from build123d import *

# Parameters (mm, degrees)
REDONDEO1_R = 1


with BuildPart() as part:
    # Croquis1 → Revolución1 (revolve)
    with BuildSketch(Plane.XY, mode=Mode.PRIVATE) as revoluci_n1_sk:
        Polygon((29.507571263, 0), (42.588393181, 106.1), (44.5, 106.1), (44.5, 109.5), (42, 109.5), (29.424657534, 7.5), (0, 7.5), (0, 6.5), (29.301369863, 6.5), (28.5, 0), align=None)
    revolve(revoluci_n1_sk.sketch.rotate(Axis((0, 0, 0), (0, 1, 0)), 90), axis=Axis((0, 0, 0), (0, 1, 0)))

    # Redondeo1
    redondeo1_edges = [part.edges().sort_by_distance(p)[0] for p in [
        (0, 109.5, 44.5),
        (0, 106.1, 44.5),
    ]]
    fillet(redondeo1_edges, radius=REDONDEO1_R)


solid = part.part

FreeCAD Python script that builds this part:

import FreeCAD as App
import Part
import Sketcher


def edges_at(feature, points):
    """Names of the edges that pass closest to the given points."""
    edges = feature.Shape.Edges
    near = lambda p: min(range(len(edges)), key=lambda i: edges[i].distToShape(Part.Vertex(*p))[0])
    return sorted({f"Edge{near(p) + 1}" for p in points})

doc = App.newDocument("Part")
params = doc.addObject("Spreadsheet::Sheet", "Params")
for row, (alias, value) in enumerate([
    ("sketch1_height", "1 mm"),
    ("sketch1_width", "2.5 mm"),
    ("sketch1_height2", "3.4 mm"),
    ("revolution_angle", "360 deg"),
    ("fillet_radius", "1 mm"),
], start=1):
    params.set(f"A{row}", alias)
    params.set(f"B{row}", "=" + value)
    params.setAlias(f"B{row}", alias)

body = doc.addObject("PartDesign::Body", "Body")

sketch1 = body.newObject("Sketcher::SketchObject", "Sketch")
sketch1.AttachmentSupport = (doc.getObject("XY_Plane"), [""])
sketch1.MapMode = "FlatFace"
sketch1.addGeometry(Part.LineSegment(App.Vector(29.5, 0, 0), App.Vector(42.6, 106.1, 0)), False)
sketch1.addGeometry(Part.LineSegment(App.Vector(42.6, 106.1, 0), App.Vector(44.5, 106.1, 0)), False)
sketch1.addGeometry(Part.LineSegment(App.Vector(44.5, 106.1, 0), App.Vector(44.5, 109.5, 0)), False)
sketch1.addGeometry(Part.LineSegment(App.Vector(44.5, 109.5, 0), App.Vector(42, 109.5, 0)), False)
sketch1.addGeometry(Part.LineSegment(App.Vector(42, 109.5, 0), App.Vector(29.4, 7.5, 0)), False)
sketch1.addGeometry(Part.LineSegment(App.Vector(29.4, 7.5, 0), App.Vector(0, 7.5, 0)), False)
sketch1.addGeometry(Part.LineSegment(App.Vector(0, 7.5, 0), App.Vector(0, 6.5, 0)), False)
sketch1.addGeometry(Part.LineSegment(App.Vector(0, 6.5, 0), App.Vector(29.3, 6.5, 0)), False)
sketch1.addGeometry(Part.LineSegment(App.Vector(29.3, 6.5, 0), App.Vector(28.5, 0, 0)), False)
sketch1.addGeometry(Part.LineSegment(App.Vector(28.5, 0, 0), App.Vector(29.5, 0, 0)), False)
sketch1.addConstraint(Sketcher.Constraint("Coincident", 0, 2, 1, 1))
sketch1.addConstraint(Sketcher.Constraint("Coincident", 1, 2, 2, 1))
sketch1.addConstraint(Sketcher.Constraint("Coincident", 2, 2, 3, 1))
sketch1.addConstraint(Sketcher.Constraint("Coincident", 3, 2, 4, 1))
sketch1.addConstraint(Sketcher.Constraint("Coincident", 4, 2, 5, 1))
sketch1.addConstraint(Sketcher.Constraint("Coincident", 5, 2, 6, 1))
sketch1.addConstraint(Sketcher.Constraint("Coincident", 6, 2, 7, 1))
sketch1.addConstraint(Sketcher.Constraint("Coincident", 7, 2, 8, 1))
sketch1.addConstraint(Sketcher.Constraint("Coincident", 8, 2, 9, 1))
sketch1.addConstraint(Sketcher.Constraint("Coincident", 9, 2, 0, 1))
sketch1.addConstraint(Sketcher.Constraint("Horizontal", 1))
sketch1.addConstraint(Sketcher.Constraint("Vertical", 2))
sketch1.addConstraint(Sketcher.Constraint("Horizontal", 3))
sketch1.addConstraint(Sketcher.Constraint("Horizontal", 5))
sketch1.addConstraint(Sketcher.Constraint("Vertical", 6))
sketch1.addConstraint(Sketcher.Constraint("Horizontal", 7))
sketch1.addConstraint(Sketcher.Constraint("Horizontal", 9))
sketch1.addConstraint(Sketcher.Constraint("PointOnObject", 5, 2, -2))
sketch1.addConstraint(Sketcher.Constraint("PointOnObject", 8, 2, -1))
sketch1.addConstraint(Sketcher.Constraint("Parallel", 0, 4))
sketch1.addConstraint(Sketcher.Constraint("Parallel", 4, 8))
sketch1.addConstraint(Sketcher.Constraint("DistanceY", 6, 2, 6, 1, 1.0))
sketch1.addConstraint(Sketcher.Constraint("DistanceX", 3, 2, 3, 1, 2.5))
sketch1.addConstraint(Sketcher.Constraint("DistanceY", 2, 1, 2, 2, 3.4))
sketch1.addConstraint(Sketcher.Constraint("DistanceX", -1, 1, 3, 2, 42.0))
sketch1.addConstraint(Sketcher.Constraint("DistanceY", 4, 2, 3, 2, 102.0))
sketch1.addConstraint(Sketcher.Constraint("DistanceY", -1, 1, 0, 2, 106.1))
sketch1.addConstraint(Sketcher.Constraint("DistanceX", -1, 1, 8, 2, 28.5))
sketch1.addConstraint(Sketcher.Constraint("DistanceX", 7, 1, 7, 2, 29.30137))
sketch1.addConstraint(Sketcher.Constraint("DistanceX", 9, 1, 9, 2, 1.007571))
sketch1.setExpression("Constraints[21]", "Params.sketch1_height")
sketch1.setExpression("Constraints[22]", "Params.sketch1_width")
sketch1.setExpression("Constraints[23]", "Params.sketch1_height2")
revolution = body.newObject("PartDesign::Revolution", "Revolution")
revolution.Profile = sketch1
revolution.ReferenceAxis = (sketch1, ["V_Axis"])
revolution.setExpression("Angle", "Params.revolution_angle")
doc.recompute()

fillet = body.newObject("PartDesign::Fillet", "Fillet")
fillet.Base = (revolution, edges_at(revolution, [(0, 109.5, 44.5), (0, 106.1, 44.5)]))
fillet.setExpression("Radius", "Params.fillet_radius")

doc.recompute()
